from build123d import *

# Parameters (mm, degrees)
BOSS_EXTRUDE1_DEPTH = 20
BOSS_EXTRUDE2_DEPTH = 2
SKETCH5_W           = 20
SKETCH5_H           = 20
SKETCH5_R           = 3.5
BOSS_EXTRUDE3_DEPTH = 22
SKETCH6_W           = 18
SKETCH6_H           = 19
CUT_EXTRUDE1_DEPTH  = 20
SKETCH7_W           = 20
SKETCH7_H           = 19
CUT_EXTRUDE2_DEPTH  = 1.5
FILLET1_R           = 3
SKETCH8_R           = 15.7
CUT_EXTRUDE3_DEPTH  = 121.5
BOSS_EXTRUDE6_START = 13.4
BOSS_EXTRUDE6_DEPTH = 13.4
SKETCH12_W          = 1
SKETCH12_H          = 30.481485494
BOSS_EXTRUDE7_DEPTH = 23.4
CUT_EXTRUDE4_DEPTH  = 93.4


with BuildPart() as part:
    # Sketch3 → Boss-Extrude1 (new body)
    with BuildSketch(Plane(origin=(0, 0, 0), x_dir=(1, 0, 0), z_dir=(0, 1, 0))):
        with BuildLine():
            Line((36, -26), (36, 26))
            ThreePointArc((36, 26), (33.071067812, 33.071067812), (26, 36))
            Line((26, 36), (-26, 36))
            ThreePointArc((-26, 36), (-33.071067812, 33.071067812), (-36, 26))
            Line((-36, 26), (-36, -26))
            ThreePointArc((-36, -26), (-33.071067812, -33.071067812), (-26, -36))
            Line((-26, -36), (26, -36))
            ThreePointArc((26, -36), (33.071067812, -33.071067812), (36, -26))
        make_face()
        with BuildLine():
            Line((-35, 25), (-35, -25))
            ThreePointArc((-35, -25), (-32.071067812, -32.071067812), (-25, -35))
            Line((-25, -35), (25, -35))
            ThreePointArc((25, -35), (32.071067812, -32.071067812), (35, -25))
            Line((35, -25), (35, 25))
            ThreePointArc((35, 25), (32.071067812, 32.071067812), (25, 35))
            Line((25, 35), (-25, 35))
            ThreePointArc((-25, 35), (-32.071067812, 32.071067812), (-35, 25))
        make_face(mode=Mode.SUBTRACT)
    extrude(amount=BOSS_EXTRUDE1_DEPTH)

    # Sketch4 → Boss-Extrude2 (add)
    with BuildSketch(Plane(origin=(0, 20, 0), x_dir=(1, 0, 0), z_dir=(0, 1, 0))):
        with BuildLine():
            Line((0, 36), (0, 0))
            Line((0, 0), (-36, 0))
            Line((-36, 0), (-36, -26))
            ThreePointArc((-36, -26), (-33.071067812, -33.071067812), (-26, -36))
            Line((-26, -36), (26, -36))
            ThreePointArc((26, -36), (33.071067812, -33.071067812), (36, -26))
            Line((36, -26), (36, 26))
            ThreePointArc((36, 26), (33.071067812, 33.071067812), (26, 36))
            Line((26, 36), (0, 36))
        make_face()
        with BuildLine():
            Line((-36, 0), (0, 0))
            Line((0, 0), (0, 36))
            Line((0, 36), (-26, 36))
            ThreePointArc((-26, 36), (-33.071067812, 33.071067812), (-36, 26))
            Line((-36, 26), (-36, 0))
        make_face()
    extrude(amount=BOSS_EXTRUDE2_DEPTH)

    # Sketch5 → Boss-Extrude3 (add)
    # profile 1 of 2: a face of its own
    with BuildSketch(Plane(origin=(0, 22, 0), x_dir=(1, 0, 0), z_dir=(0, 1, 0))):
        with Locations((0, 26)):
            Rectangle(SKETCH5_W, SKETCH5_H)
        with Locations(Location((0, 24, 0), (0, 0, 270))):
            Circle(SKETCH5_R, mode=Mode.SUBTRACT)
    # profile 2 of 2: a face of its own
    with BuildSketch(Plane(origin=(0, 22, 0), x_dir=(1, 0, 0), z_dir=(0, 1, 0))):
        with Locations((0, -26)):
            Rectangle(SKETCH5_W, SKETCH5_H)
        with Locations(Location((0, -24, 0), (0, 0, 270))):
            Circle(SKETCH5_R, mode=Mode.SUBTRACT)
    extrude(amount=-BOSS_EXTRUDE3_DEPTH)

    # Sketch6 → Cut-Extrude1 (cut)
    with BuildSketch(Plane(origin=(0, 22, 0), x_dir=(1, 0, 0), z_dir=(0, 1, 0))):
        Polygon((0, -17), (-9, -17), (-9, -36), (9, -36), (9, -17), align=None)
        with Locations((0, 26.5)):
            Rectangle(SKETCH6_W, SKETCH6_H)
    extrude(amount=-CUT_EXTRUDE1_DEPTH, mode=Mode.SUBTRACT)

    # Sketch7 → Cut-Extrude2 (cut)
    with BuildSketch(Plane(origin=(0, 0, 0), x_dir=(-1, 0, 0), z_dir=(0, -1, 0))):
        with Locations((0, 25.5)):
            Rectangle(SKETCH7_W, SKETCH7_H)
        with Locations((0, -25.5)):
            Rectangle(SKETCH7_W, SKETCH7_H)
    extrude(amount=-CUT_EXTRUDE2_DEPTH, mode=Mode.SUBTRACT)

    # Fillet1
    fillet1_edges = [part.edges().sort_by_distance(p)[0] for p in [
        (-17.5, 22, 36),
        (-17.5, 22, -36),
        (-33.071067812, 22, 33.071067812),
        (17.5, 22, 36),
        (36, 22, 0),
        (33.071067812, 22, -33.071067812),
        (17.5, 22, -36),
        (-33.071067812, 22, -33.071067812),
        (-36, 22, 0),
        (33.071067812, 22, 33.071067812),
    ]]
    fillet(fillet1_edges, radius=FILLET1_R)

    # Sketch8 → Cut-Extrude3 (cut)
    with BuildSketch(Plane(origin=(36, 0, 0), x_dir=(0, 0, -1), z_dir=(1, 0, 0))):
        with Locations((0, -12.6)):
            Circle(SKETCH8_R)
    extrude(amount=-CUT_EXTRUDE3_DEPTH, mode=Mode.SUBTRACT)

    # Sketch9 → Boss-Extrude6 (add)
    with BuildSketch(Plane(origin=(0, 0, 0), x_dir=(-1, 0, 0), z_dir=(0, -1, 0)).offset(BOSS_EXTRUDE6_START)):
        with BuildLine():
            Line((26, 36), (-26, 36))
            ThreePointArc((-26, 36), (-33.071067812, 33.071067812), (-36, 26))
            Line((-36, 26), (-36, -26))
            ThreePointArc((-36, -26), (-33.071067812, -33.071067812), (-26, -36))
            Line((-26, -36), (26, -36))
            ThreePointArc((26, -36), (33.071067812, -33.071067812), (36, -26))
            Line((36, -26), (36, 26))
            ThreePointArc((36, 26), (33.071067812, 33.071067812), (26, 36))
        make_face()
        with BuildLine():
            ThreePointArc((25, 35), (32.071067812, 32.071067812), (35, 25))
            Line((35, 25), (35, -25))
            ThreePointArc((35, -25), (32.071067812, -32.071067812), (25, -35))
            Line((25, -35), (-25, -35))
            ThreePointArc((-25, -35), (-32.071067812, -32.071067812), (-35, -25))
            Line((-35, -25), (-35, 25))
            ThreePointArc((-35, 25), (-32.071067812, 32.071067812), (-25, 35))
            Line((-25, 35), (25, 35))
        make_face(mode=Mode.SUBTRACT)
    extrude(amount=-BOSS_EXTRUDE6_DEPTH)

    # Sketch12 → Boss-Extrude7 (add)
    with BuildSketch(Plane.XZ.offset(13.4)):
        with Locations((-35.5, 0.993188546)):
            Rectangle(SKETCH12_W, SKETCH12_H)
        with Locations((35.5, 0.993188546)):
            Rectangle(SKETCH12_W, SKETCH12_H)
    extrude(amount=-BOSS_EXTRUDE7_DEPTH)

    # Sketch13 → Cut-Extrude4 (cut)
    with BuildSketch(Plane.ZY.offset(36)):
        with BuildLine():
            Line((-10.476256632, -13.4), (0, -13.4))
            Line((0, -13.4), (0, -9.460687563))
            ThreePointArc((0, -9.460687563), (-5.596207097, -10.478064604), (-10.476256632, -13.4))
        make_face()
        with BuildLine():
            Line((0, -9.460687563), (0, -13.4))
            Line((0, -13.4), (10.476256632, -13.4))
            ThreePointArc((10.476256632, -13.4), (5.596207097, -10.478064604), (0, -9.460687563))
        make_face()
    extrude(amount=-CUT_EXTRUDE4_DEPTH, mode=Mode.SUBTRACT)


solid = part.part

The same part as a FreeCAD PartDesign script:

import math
import FreeCAD as App
import Part
import Sketcher
from FreeCAD import Vector
Q = App.Units.Quantity


def edges_at(feature, points):
    """Names of the edges that pass closest to the given points."""
    edges = feature.Shape.Edges
    near = lambda p: min(range(len(edges)), key=lambda i: edges[i].distToShape(Part.Vertex(*p))[0])
    return sorted({f"Edge{near(p) + 1}" for p in points})


def add_polygon(sketch, points):
    """Adds a closed chain of lines whose ends are joined by coincident constraints."""
    first, n = sketch.GeometryCount, len(points)
    for a, b in zip(points, points[1:] + points[:1]):
        sketch.addGeometry(Part.LineSegment(App.Vector(*a, 0), App.Vector(*b, 0)), False)
    for i in range(n):
        sketch.addConstraint(Sketcher.Constraint("Coincident", first + i, 2, first + (i + 1) % n, 1))

doc = App.newDocument("Part")
body = doc.addObject("PartDesign::Body", "Body")

# Sketch on XZ plane
sketch1 = body.newObject("Sketcher::SketchObject", "Sketch")
sketch1.AttachmentSupport = (doc.getObject("XZ_Plane"), [""])
sketch1.MapMode = "FlatFace"
sketch1.addGeometry([
    Part.LineSegment(Vector(36, 26, 0), Vector(36, -26, 0)),  # 0
    Part.ArcOfCircle(Part.Circle(Vector(26, -26, 0), Vector(0, 0, 1), 10), math.radians(-90), math.radians(0)),  # 1
    Part.LineSegment(Vector(26, -36, 0), Vector(-26, -36, 0)),  # 2
    Part.ArcOfCircle(Part.Circle(Vector(-26, -26, 0), Vector(0, 0, 1), 10), math.radians(180), math.radians(270)),  # 3
    Part.LineSegment(Vector(-36, -26, 0), Vector(-36, 26, 0)),  # 4
    Part.ArcOfCircle(Part.Circle(Vector(-26, 26, 0), Vector(0, 0, 1), 10), math.radians(90), math.radians(180)),  # 5
    Part.LineSegment(Vector(-26, 36, 0), Vector(26, 36, 0)),  # 6
    Part.ArcOfCircle(Part.Circle(Vector(26, 26, 0), Vector(0, 0, 1), 10), math.radians(0), math.radians(90)),  # 7
    Part.LineSegment(Vector(-35, 25, 0), Vector(-35, -25, 0)),  # 8
    Part.ArcOfCircle(Part.Circle(Vector(-25, -25, 0), Vector(0, 0, 1), 10), math.radians(180), math.radians(270)),  # 9
    Part.LineSegment(Vector(-25, -35, 0), Vector(25, -35, 0)),  # 10
    Part.ArcOfCircle(Part.Circle(Vector(25, -25, 0), Vector(0, 0, 1), 10), math.radians(-90), math.radians(0)),  # 11
    Part.LineSegment(Vector(35, -25, 0), Vector(35, 25, 0)),  # 12
    Part.ArcOfCircle(Part.Circle(Vector(25, 25, 0), Vector(0, 0, 1), 10), math.radians(0), math.radians(90)),  # 13
    Part.LineSegment(Vector(25, 35, 0), Vector(-25, 35, 0)),  # 14
    Part.ArcOfCircle(Part.Circle(Vector(-25, 25, 0), Vector(0, 0, 1), 10), math.radians(90), math.radians(180)),  # 15
], False)
sketch1.addConstraint([
    Sketcher.Constraint("Tangent", 0, 2, 1, 2),
    Sketcher.Constraint("Tangent", 1, 1, 2, 1),
    Sketcher.Constraint("Tangent", 2, 2, 3, 2),
    Sketcher.Constraint("Tangent", 3, 1, 4, 1),
    Sketcher.Constraint("Tangent", 4, 2, 5, 2),
    Sketcher.Constraint("Tangent", 5, 1, 6, 1),
    Sketcher.Constraint("Tangent", 6, 2, 7, 2),
    Sketcher.Constraint("Tangent", 7, 1, 0, 1),
    Sketcher.Constraint("Tangent", 8, 2, 9, 1),
    Sketcher.Constraint("Tangent", 9, 2, 10, 1),
    Sketcher.Constraint("Tangent", 10, 2, 11, 1),
    Sketcher.Constraint("Tangent", 11, 2, 12, 1),
    Sketcher.Constraint("Tangent", 12, 2, 13, 1),
    Sketcher.Constraint("Tangent", 13, 2, 14, 1),
    Sketcher.Constraint("Tangent", 14, 2, 15, 1),
    Sketcher.Constraint("Tangent", 15, 2, 8, 1),
    Sketcher.Constraint("Vertical", 0),
    Sketcher.Constraint("Horizontal", 2),
    Sketcher.Constraint("Vertical", 4),
    Sketcher.Constraint("Horizontal", 6),
    Sketcher.Constraint("Vertical", 8),
    Sketcher.Constraint("Horizontal", 10),
    Sketcher.Constraint("Vertical", 12),
    Sketcher.Constraint("Horizontal", 14),
    Sketcher.Constraint("Equal", 1, 3),
    Sketcher.Constraint("Equal", 3, 5),
    Sketcher.Constraint("Equal", 5, 7),
    Sketcher.Constraint("Equal", 7, 9),
    Sketcher.Constraint("Equal", 9, 11),
    Sketcher.Constraint("Equal", 11, 13),
    Sketcher.Constraint("Equal", 13, 15),
    Sketcher.Constraint("Symmetric", 1, 3, 5, 3, -1, 1),
    Sketcher.Constraint("Symmetric", 9, 3, 13, 3, -1, 1),
    Sketcher.Constraint("Equal", 6, 0),
    Sketcher.Constraint("Equal", 14, 8),
    Sketcher.Constraint("Radius", 1, Q("10 mm")),
    Sketcher.Constraint("DistanceX", 2, 2, 2, 1, Q("52 mm")),
    Sketcher.Constraint("DistanceX", 10, 1, 10, 2, Q("50 mm")),
])
pad1 = body.newObject("PartDesign::Pad", "Pad")
pad1.Profile = sketch1
pad1.Length = 20
pad1.Reversed = True

# Sketch on XZ plane
sketch2 = body.newObject("Sketcher::SketchObject", "Sketch001")
sketch2.AttachmentSupport = (doc.getObject("XZ_Plane"), [""])
sketch2.MapMode = "FlatFace"
sketch2.AttachmentOffset = App.Placement(Vector(0, 0, -20), App.Rotation())
sketch2.addGeometry([
    Part.ArcOfCircle(Part.Circle(Vector(-26, 26, 0), Vector(0, 0, 1), 10), math.radians(90), math.radians(180)),  # 0
    Part.LineSegment(Vector(-26, 36, 0), Vector(26, 36, 0)),  # 1
    Part.ArcOfCircle(Part.Circle(Vector(26, 26, 0), Vector(0, 0, 1), 10), math.radians(0), math.radians(90)),  # 2
    Part.LineSegment(Vector(36, 26, 0), Vector(36, -26, 0)),  # 3
    Part.ArcOfCircle(Part.Circle(Vector(26, -26, 0), Vector(0, 0, 1), 10), math.radians(-90), math.radians(0)),  # 4
    Part.LineSegment(Vector(26, -36, 0), Vector(-26, -36, 0)),  # 5
    Part.ArcOfCircle(Part.Circle(Vector(-26, -26, 0), Vector(0, 0, 1), 10), math.radians(180), math.radians(270)),  # 6
    Part.LineSegment(Vector(-36, -26, 0), Vector(-36, 26, 0)),  # 7
], False)
sketch2.addConstraint([
    Sketcher.Constraint("Tangent", 0, 1, 1, 1),
    Sketcher.Constraint("Tangent", 1, 2, 2, 2),
    Sketcher.Constraint("Tangent", 2, 1, 3, 1),
    Sketcher.Constraint("Tangent", 3, 2, 4, 2),
    Sketcher.Constraint("Tangent", 4, 1, 5, 1),
    Sketcher.Constraint("Tangent", 5, 2, 6, 2),
    Sketcher.Constraint("Tangent", 6, 1, 7, 1),
    Sketcher.Constraint("Tangent", 7, 2, 0, 2),
    Sketcher.Constraint("Horizontal", 1),
    Sketcher.Constraint("Vertical", 3),
    Sketcher.Constraint("Horizontal", 5),
    Sketcher.Constraint("Vertical", 7),
    Sketcher.Constraint("Equal", 0, 2),
    Sketcher.Constraint("Equal", 2, 4),
    Sketcher.Constraint("Equal", 4, 6),
    Sketcher.Constraint("Symmetric", 0, 3, 4, 3, -1, 1),
    Sketcher.Constraint("Equal", 5, 3),
    Sketcher.Constraint("Radius", 0, Q("10 mm")),
    Sketcher.Constraint("DistanceX", 1, 1, 1, 2, Q("52 mm")),
])
pad2 = body.newObject("PartDesign::Pad", "Pad001")
pad2.Profile = sketch2
pad2.Length = 2
pad2.Reversed = True

# Sketch on XZ plane
sketch3 = body.newObject("Sketcher::SketchObject", "Sketch002")
sketch3.AttachmentSupport = (doc.getObject("XZ_Plane"), [""])
sketch3.MapMode = "FlatFace"
sketch3.AttachmentOffset = App.Placement(Vector(0, 0, -22), App.Rotation())
add_polygon(sketch3, [(-10, -36), (-10, -16), (10, -16), (10, -36)])  # lines 0-3
sketch3.addGeometry(Part.Circle(Vector(0, -24, 0), Vector(0, 0, 1), 3.5), False)  # 4
add_polygon(sketch3, [(-10, 16), (-10, 36), (10, 36), (10, 16)])  # lines 5-8
sketch3.addGeometry(Part.Circle(Vector(0, 24, 0), Vector(0, 0, 1), 3.5), False)  # 9
sketch3.addConstraint([
    Sketcher.Constraint("Vertical", 0),
    Sketcher.Constraint("Horizontal", 1),
    Sketcher.Constraint("Vertical", 2),
    Sketcher.Constraint("Horizontal", 3),
    Sketcher.Constraint("Vertical", 5),
    Sketcher.Constraint("Horizontal", 6),
    Sketcher.Constraint("Vertical", 7),
    Sketcher.Constraint("Horizontal", 8),
    Sketcher.Constraint("Equal", 4, 9),
    Sketcher.Constraint("Symmetric", 4, 3, 9, 3, -1, 1),
    Sketcher.Constraint("Symmetric", 2, 2, 5, 2, -1, 1),
    Sketcher.Constraint("Symmetric", 0, 2, 7, 2, -1, 1),
    Sketcher.Constraint("PointOnObject", 4, 3, -2),
    Sketcher.Constraint("Vertical", 3, 2, 5, 2),
    Sketcher.Constraint("Equal", 8, 0),
    Sketcher.Constraint("Diameter", 4, Q("7 mm")),
    Sketcher.Constraint("DistanceX", 1, 1, 1, 2, Q("20 mm")),
    Sketcher.Constraint("DistanceY", 4, 3, -1, 1, Q("24 mm")),
    Sketcher.Constraint("DistanceY", 0, 2, -1, 1, Q("16 mm")),
])
pad3 = body.newObject("PartDesign::Pad", "Pad002")
pad3.Profile = sketch3
pad3.Length = 22

# Sketch on XZ plane
sketch4 = body.newObject("Sketcher::SketchObject", "Sketch003")
sketch4.AttachmentSupport = (doc.getObject("XZ_Plane"), [""])
sketch4.MapMode = "FlatFace"
sketch4.AttachmentOffset = App.Placement(Vector(0, 0, -22), App.Rotation())
add_polygon(sketch4, [(-9, 17), (-9, 36), (9, 36), (9, 17)])  # lines 0-3
add_polygon(sketch4, [(-9, -36), (-9, -17), (9, -17), (9, -36)])  # lines 4-7
sketch4.addConstraint([
    Sketcher.Constraint("Vertical", 0),
    Sketcher.Constraint("Horizontal", 1),
    Sketcher.Constraint("Vertical", 2),
    Sketcher.Constraint("Horizontal", 3),
    Sketcher.Constraint("Vertical", 4),
    Sketcher.Constraint("Horizontal", 5),
    Sketcher.Constraint("Vertical", 6),
    Sketcher.Constraint("Horizontal", 7),
    Sketcher.Constraint("Symmetric", 2, 2, 4, 2, -1, 1),
    Sketcher.Constraint("Symmetric", 0, 2, 6, 2, -1, 1),
    Sketcher.Constraint("Vertical", 3, 2, 4, 2),
    Sketcher.Constraint("DistanceX", 1, 1, 1, 2, Q("18 mm")),
    Sketcher.Constraint("DistanceY", 0, 1, 0, 2, Q("19 mm")),
    Sketcher.Constraint("DistanceY", -1, 1, 0, 2, Q("36 mm")),
])
pocket1 = body.newObject("PartDesign::Pocket", "Pocket")
pocket1.Profile = sketch4
pocket1.Length = 20
pocket1.Reversed = True

# Sketch on XZ plane
sketch5 = body.newObject("Sketcher::SketchObject", "Sketch004")
sketch5.AttachmentSupport = (doc.getObject("XZ_Plane"), [""])
sketch5.MapMode = "FlatFace"
add_polygon(sketch5, [(10, -35), (10, -16), (-10, -16), (-10, -35)])  # lines 0-3
add_polygon(sketch5, [(10, 16), (10, 35), (-10, 35), (-10, 16)])  # lines 4-7
sketch5.addConstraint([
    Sketcher.Constraint("Vertical", 0),
    Sketcher.Constraint("Horizontal", 1),
    Sketcher.Constraint("Vertical", 2),
    Sketcher.Constraint("Horizontal", 3),
    Sketcher.Constraint("Vertical", 4),
    Sketcher.Constraint("Horizontal", 5),
    Sketcher.Constraint("Vertical", 6),
    Sketcher.Constraint("Horizontal", 7),
    Sketcher.Constraint("Symmetric", 2, 2, 4, 2, -1, 1),
    Sketcher.Constraint("Symmetric", 0, 2, 6, 2, -1, 1),
    Sketcher.Constraint("Vertical", 3, 2, 4, 2),
    Sketcher.Constraint("DistanceX", 1, 2, 1, 1, Q("20 mm")),
    Sketcher.Constraint("DistanceY", 0, 1, 0, 2, Q("19 mm")),
    Sketcher.Constraint("DistanceY", 0, 2, -1, 1, Q("16 mm")),
])
pocket2 = body.newObject("PartDesign::Pocket", "Pocket001")
pocket2.Profile = sketch5
pocket2.Length = 1.5
doc.recompute()

fillet = body.newObject("PartDesign::Fillet", "Fillet")
fillet.Base = (pocket2, edges_at(pocket2, [
    (-17.5, 22, 36),
    (-17.5, 22, -36),
    (-33.071, 22, 33.071),
    (17.5, 22, 36),
    (36, 22, 0),
    (33.071, 22, -33.071),
    (17.5, 22, -36),
    (-33.071, 22, -33.071),
    (-36, 22, 0),
    (33.071, 22, 33.071),
]))
fillet.Radius = 3

# Sketch on YZ plane
sketch6 = body.newObject("Sketcher::SketchObject", "Sketch005")
sketch6.AttachmentSupport = (doc.getObject("YZ_Plane"), [""])
sketch6.MapMode = "FlatFace"
sketch6.AttachmentOffset = App.Placement(Vector(0, 0, 36), App.Rotation())
sketch6.addGeometry(Part.Circle(Vector(-13, 0, 0), Vector(0, 0, 1), 16), False)
sketch6.addConstraint([
    Sketcher.Constraint("PointOnObject", 0, 3, -1),
    Sketcher.Constraint("Diameter", 0, Q("31.4 mm")),
    Sketcher.Constraint("DistanceX", 0, 3, -1, 1, Q("12.6 mm")),
])
pocket3 = body.newObject("PartDesign::Pocket", "Pocket002")
pocket3.Profile = sketch6
pocket3.Length = 121.5

# Sketch on XZ plane
sketch7 = body.newObject("Sketcher::SketchObject", "Sketch006")
sketch7.AttachmentSupport = (doc.getObject("XZ_Plane"), [""])
sketch7.MapMode = "FlatFace"
sketch7.AttachmentOffset = App.Placement(Vector(0, 0, 13.4), App.Rotation())
sketch7.addGeometry([
    Part.LineSegment(Vector(-26, -36, 0), Vector(26, -36, 0)),  # 0
    Part.ArcOfCircle(Part.Circle(Vector(26, -26, 0), Vector(0, 0, 1), 10), math.radians(-90), math.radians(0)),  # 1
    Part.LineSegment(Vector(36, -26, 0), Vector(36, 26, 0)),  # 2
    Part.ArcOfCircle(Part.Circle(Vector(26, 26, 0), Vector(0, 0, 1), 10), math.radians(0), math.radians(90)),  # 3
    Part.LineSegment(Vector(26, 36, 0), Vector(-26, 36, 0)),  # 4
    Part.ArcOfCircle(Part.Circle(Vector(-26, 26, 0), Vector(0, 0, 1), 10), math.radians(90), math.radians(180)),  # 5
    Part.LineSegment(Vector(-36, 26, 0), Vector(-36, -26, 0)),  # 6
    Part.ArcOfCircle(Part.Circle(Vector(-26, -26, 0), Vector(0, 0, 1), 10), math.radians(180), math.radians(270)),  # 7
    Part.LineSegment(Vector(25, -35, 0), Vector(-25, -35, 0)),  # 8
    Part.ArcOfCircle(Part.Circle(Vector(-25, -25, 0), Vector(0, 0, 1), 10), math.radians(180), math.radians(270)),  # 9
    Part.LineSegment(Vector(-35, -25, 0), Vector(-35, 25, 0)),  # 10
    Part.ArcOfCircle(Part.Circle(Vector(-25, 25, 0), Vector(0, 0, 1), 10), math.radians(90), math.radians(180)),  # 11
    Part.LineSegment(Vector(-25, 35, 0), Vector(25, 35, 0)),  # 12
    Part.ArcOfCircle(Part.Circle(Vector(25, 25, 0), Vector(0, 0, 1), 10), math.radians(0), math.radians(90)),  # 13
    Part.LineSegment(Vector(35, 25, 0), Vector(35, -25, 0)),  # 14
    Part.ArcOfCircle(Part.Circle(Vector(25, -25, 0), Vector(0, 0, 1), 10), math.radians(-90), math.radians(0)),  # 15
], False)
sketch7.addConstraint([
    Sketcher.Constraint("Tangent", 0, 2, 1, 1),
    Sketcher.Constraint("Tangent", 1, 2, 2, 1),
    Sketcher.Constraint("Tangent", 2, 2, 3, 1),
    Sketcher.Constraint("Tangent", 3, 2, 4, 1),
    Sketcher.Constraint("Tangent", 4, 2, 5, 1),
    Sketcher.Constraint("Tangent", 5, 2, 6, 1),
    Sketcher.Constraint("Tangent", 6, 2, 7, 1),
    Sketcher.Constraint("Tangent", 7, 2, 0, 1),
    Sketcher.Constraint("Tangent", 8, 2, 9, 2),
    Sketcher.Constraint("Tangent", 9, 1, 10, 1),
    Sketcher.Constraint("Tangent", 10, 2, 11, 2),
    Sketcher.Constraint("Tangent", 11, 1, 12, 1),
    Sketcher.Constraint("Tangent", 12, 2, 13, 2),
    Sketcher.Constraint("Tangent", 13, 1, 14, 1),
    Sketcher.Constraint("Tangent", 14, 2, 15, 2),
    Sketcher.Constraint("Tangent", 15, 1, 8, 1),
    Sketcher.Constraint("Horizontal", 0),
    Sketcher.Constraint("Vertical", 2),
    Sketcher.Constraint("Horizontal", 4),
    Sketcher.Constraint("Vertical", 6),
    Sketcher.Constraint("Horizontal", 8),
    Sketcher.Constraint("Vertical", 10),
    Sketcher.Constraint("Horizontal", 12),
    Sketcher.Constraint("Vertical", 14),
    Sketcher.Constraint("Equal", 1, 3),
    Sketcher.Constraint("Equal", 3, 5),
    Sketcher.Constraint("Equal", 5, 7),
    Sketcher.Constraint("Equal", 7, 9),
    Sketcher.Constraint("Equal", 9, 11),
    Sketcher.Constraint("Equal", 11, 13),
    Sketcher.Constraint("Equal", 13, 15),
    Sketcher.Constraint("Symmetric", 1, 3, 5, 3, -1, 1),
    Sketcher.Constraint("Symmetric", 9, 3, 13, 3, -1, 1),
    Sketcher.Constraint("Equal", 4, 2),
    Sketcher.Constraint("Equal", 12, 10),
    Sketcher.Constraint("Radius", 1, Q("10 mm")),
    Sketcher.Constraint("DistanceX", 0, 1, 0, 2, Q("52 mm")),
    Sketcher.Constraint("DistanceX", 8, 2, 8, 1, Q("50 mm")),
])
pad4 = body.newObject("PartDesign::Pad", "Pad003")
pad4.Profile = sketch7
pad4.Length = 13.4
pad4.Reversed = True

# Sketch on XZ plane
sketch8 = body.newObject("Sketcher::SketchObject", "Sketch007")
sketch8.AttachmentSupport = (doc.getObject("XZ_Plane"), [""])
sketch8.MapMode = "FlatFace"
sketch8.AttachmentOffset = App.Placement(Vector(0, 0, 13.4), App.Rotation())
add_polygon(sketch8, [(-36, 16.2), (-36, -14.2), (-35, -14.2), (-35, 16.2)])  # lines 0-3
add_polygon(sketch8, [(35, 16.2), (35, -14.2), (36, -14.2), (36, 16.2)])  # lines 4-7
sketch8.addConstraint([
    Sketcher.Constraint("Vertical", 0),
    Sketcher.Constraint("Horizontal", 1),
    Sketcher.Constraint("Vertical", 2),
    Sketcher.Constraint("Horizontal", 3),
    Sketcher.Constraint("Vertical", 4),
    Sketcher.Constraint("Horizontal", 5),
    Sketcher.Constraint("Vertical", 6),
    Sketcher.Constraint("Horizontal", 7),
    Sketcher.Constraint("Symmetric", 1, 2, 4, 2, -2),
    Sketcher.Constraint("Symmetric", 3, 2, 6, 2, -2),
    Sketcher.Constraint("DistanceX", 1, 1, 1, 2, Q("1 mm")),
    Sketcher.Constraint("DistanceX", 0, 2, -1, 1, Q("36 mm")),
    Sketcher.Constraint("DistanceY", 0, 2, 0, 1, Q("30.481485 mm")),
    Sketcher.Constraint("DistanceY", -1, 1, 2, 2, Q("16.233931 mm")),
])
pad5 = body.newObject("PartDesign::Pad", "Pad004")
pad5.Profile = sketch8
pad5.Length = 23.4
pad5.Reversed = True

# Sketch on YZ plane
sketch9 = body.newObject("Sketcher::SketchObject", "Sketch008")
sketch9.AttachmentSupport = (doc.getObject("YZ_Plane"), [""])
sketch9.MapMode = "FlatFace"
sketch9.AttachmentOffset = App.Placement(Vector(0, 0, -36), App.Rotation())
sketch9.addGeometry([
    Part.LineSegment(Vector(-13, -10, 0), Vector(-13, 10, 0)),
    Part.ArcOfCircle(Part.Circle(Vector(-25, 0, 0), Vector(0, 0, 1), 16), math.radians(0), math.radians(41)),
    Part.ArcOfCircle(Part.Circle(Vector(-25, 0, 0), Vector(0, 0, 1), 16), math.radians(-41), math.radians(0)),
], False)
sketch9.addConstraint([
    Sketcher.Constraint("Coincident", 0, 2, 1, 2),
    Sketcher.Constraint("Tangent", 1, 1, 2, 2),
    Sketcher.Constraint("Coincident", 2, 1, 0, 1),
    Sketcher.Constraint("Vertical", 0),
    Sketcher.Constraint("Equal", 1, 2),
    Sketcher.Constraint("PointOnObject", 1, 3, -1),
    Sketcher.Constraint("PointOnObject", 1, 1, -1),
    Sketcher.Constraint("Radius", 1, Q("15.9 mm")),
    Sketcher.Constraint("DistanceX", 0, 2, -1, 1, Q("13.4 mm")),
    Sketcher.Constraint("DistanceY", 0, 1, 0, 2, Q("20.952513 mm")),
])
pocket4 = body.newObject("PartDesign::Pocket", "Pocket003")
pocket4.Profile = sketch9
pocket4.Length = 93.4
pocket4.Reversed = True

doc.recompute()
